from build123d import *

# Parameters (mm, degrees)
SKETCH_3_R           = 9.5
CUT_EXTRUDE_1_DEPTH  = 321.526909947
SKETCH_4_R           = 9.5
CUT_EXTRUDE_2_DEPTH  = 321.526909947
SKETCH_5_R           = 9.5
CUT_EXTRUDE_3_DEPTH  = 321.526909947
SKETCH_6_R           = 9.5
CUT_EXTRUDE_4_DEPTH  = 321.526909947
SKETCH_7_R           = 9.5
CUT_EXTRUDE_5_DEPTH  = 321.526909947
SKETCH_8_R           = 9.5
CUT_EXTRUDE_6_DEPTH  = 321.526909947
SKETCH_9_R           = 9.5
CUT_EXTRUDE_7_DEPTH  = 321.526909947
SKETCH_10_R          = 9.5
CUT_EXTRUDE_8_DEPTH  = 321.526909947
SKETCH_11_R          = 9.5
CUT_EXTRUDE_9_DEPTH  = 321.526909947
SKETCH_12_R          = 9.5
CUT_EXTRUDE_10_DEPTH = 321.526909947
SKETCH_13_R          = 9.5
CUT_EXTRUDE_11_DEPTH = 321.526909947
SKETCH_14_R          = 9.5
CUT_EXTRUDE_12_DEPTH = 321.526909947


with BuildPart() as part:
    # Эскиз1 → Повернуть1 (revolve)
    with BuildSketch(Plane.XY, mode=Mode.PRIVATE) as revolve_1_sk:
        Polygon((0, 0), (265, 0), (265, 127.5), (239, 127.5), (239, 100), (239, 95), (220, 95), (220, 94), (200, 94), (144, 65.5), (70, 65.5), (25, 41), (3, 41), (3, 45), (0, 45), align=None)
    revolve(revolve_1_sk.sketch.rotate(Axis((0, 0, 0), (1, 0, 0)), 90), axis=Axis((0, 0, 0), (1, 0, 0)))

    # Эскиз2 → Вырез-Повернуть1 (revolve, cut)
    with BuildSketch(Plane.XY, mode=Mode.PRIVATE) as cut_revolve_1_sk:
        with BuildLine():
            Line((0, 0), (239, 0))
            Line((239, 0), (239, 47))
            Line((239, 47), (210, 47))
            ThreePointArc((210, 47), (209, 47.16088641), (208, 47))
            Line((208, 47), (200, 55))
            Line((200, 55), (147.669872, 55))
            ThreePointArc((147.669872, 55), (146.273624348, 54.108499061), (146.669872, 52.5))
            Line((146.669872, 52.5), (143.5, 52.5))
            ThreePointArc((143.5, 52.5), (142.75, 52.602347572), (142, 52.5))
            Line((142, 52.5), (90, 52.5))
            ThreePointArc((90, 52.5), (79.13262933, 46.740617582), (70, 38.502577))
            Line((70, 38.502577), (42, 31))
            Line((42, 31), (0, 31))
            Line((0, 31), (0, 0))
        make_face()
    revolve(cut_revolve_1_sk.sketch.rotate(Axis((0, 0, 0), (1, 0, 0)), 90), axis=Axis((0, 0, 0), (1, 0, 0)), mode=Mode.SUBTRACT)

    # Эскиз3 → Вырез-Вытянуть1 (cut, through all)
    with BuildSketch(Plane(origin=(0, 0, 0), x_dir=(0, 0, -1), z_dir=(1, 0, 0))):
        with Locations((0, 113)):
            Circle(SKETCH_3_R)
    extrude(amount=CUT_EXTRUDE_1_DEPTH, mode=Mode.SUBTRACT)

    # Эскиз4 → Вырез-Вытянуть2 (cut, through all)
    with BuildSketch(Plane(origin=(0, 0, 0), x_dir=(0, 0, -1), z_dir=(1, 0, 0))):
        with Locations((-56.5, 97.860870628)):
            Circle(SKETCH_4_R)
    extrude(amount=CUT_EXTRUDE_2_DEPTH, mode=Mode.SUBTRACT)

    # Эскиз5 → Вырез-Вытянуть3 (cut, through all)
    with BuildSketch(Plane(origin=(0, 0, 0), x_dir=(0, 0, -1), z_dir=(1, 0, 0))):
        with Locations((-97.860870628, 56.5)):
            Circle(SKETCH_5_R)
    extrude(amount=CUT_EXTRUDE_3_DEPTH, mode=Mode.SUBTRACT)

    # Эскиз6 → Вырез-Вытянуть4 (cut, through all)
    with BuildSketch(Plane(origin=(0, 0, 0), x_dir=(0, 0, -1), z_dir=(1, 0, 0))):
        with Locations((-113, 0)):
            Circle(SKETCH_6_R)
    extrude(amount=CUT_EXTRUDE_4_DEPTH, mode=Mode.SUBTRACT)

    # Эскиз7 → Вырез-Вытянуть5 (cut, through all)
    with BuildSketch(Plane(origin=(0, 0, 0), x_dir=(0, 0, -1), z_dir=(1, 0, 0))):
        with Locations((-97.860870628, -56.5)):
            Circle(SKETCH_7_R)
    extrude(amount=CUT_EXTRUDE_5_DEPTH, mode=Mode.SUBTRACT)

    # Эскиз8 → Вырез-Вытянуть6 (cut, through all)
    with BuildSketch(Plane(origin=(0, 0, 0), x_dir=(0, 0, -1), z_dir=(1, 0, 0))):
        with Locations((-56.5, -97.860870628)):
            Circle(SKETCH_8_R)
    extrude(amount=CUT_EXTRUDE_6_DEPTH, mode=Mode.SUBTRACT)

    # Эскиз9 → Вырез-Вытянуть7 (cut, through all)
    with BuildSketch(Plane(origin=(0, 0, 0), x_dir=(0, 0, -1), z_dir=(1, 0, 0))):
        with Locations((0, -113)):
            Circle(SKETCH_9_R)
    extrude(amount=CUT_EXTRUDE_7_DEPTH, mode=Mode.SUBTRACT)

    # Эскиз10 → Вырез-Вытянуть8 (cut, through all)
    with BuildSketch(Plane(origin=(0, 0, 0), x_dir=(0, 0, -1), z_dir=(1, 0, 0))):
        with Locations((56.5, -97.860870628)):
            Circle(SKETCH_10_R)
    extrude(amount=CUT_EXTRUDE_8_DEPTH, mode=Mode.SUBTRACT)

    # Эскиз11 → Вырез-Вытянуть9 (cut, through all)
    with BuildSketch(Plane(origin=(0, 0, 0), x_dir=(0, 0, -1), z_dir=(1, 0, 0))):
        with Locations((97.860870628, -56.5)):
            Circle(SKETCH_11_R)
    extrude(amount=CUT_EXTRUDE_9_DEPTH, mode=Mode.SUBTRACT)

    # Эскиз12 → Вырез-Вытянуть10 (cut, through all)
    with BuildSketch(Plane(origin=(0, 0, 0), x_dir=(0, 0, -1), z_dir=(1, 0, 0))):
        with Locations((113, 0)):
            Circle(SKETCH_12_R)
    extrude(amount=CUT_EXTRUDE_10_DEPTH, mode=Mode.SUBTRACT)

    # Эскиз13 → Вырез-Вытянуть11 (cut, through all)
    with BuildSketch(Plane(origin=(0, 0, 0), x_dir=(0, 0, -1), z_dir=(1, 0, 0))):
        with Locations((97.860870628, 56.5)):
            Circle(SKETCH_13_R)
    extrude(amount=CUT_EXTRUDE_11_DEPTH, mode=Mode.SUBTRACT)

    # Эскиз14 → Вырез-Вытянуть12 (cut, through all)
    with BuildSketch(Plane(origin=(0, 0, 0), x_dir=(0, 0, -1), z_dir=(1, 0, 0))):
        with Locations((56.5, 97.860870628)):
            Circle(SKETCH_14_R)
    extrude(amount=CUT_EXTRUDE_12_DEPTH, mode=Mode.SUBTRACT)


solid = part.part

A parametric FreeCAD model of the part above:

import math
import FreeCAD as App
import Part
import Sketcher
from FreeCAD import Vector
Q = App.Units.Quantity

doc = App.newDocument("Part")
body = doc.addObject("PartDesign::Body", "Body")

sketch1 = doc.addObject("Sketcher::SketchObject", "Sketch")
body.addObject(sketch1)
sketch1.AttachmentSupport = (doc.XY_Plane, [""])
sketch1.MapMode = "FlatFace"
sketch1.addGeometry([
    Part.LineSegment(Vector(0, 0, 0), Vector(265, 0, 0)),
    Part.LineSegment(Vector(265, 0, 0), Vector(265, 127.5, 0)),
    Part.LineSegment(Vector(265, 127.5, 0), Vector(239, 127.5, 0)),
    Part.LineSegment(Vector(239, 127.5, 0), Vector(239, 95, 0)),
    Part.LineSegment(Vector(239, 95, 0), Vector(220, 95, 0)),
    Part.LineSegment(Vector(220, 95, 0), Vector(220, 94, 0)),
    Part.LineSegment(Vector(220, 94, 0), Vector(200, 94, 0)),
    Part.LineSegment(Vector(200, 94, 0), Vector(144, 65.5, 0)),
    Part.LineSegment(Vector(144, 65.5, 0), Vector(70, 65.5, 0)),
    Part.LineSegment(Vector(70, 65.5, 0), Vector(25, 41, 0)),
    Part.LineSegment(Vector(25, 41, 0), Vector(3, 41, 0)),
    Part.LineSegment(Vector(3, 41, 0), Vector(3, 45, 0)),
    Part.LineSegment(Vector(3, 45, 0), Vector(0, 45, 0)),
    Part.LineSegment(Vector(0, 45, 0), Vector(0, 0, 0)),
], False)
sketch1.addConstraint([
    Sketcher.Constraint("Coincident", 0, 2, 1, 1),
    Sketcher.Constraint("Coincident", 1, 2, 2, 1),
    Sketcher.Constraint("Coincident", 2, 2, 3, 1),
    Sketcher.Constraint("Coincident", 3, 2, 4, 1),
    Sketcher.Constraint("Coincident", 4, 2, 5, 1),
    Sketcher.Constraint("Coincident", 5, 2, 6, 1),
    Sketcher.Constraint("Coincident", 6, 2, 7, 1),
    Sketcher.Constraint("Coincident", 7, 2, 8, 1),
    Sketcher.Constraint("Coincident", 8, 2, 9, 1),
    Sketcher.Constraint("Coincident", 9, 2, 10, 1),
    Sketcher.Constraint("Coincident", 10, 2, 11, 1),
    Sketcher.Constraint("Coincident", 11, 2, 12, 1),
    Sketcher.Constraint("Coincident", 12, 2, 13, 1),
    Sketcher.Constraint("Coincident", 13, 2, 0, 1),
    Sketcher.Constraint("Horizontal", 0),
    Sketcher.Constraint("Vertical", 1),
    Sketcher.Constraint("Horizontal", 2),
    Sketcher.Constraint("Vertical", 3),
    Sketcher.Constraint("Horizontal", 4),
    Sketcher.Constraint("Vertical", 5),
    Sketcher.Constraint("Horizontal", 6),
    Sketcher.Constraint("Horizontal", 8),
    Sketcher.Constraint("Horizontal", 10),
    Sketcher.Constraint("Vertical", 11),
    Sketcher.Constraint("Horizontal", 12),
    Sketcher.Constraint("Vertical", 13),
    Sketcher.Constraint("Coincident", 13, 2, -1, 1),
    Sketcher.Constraint("DistanceX", 0, 1, 0, 2, Q("265 mm")),
    Sketcher.Constraint("DistanceX", 2, 2, 2, 1, Q("26 mm")),
    Sketcher.Constraint("DistanceX", 4, 2, 4, 1, Q("19 mm")),
    Sketcher.Constraint("DistanceX", 6, 2, 6, 1, Q("20 mm")),
    Sketcher.Constraint("DistanceX", 8, 2, 8, 1, Q("74 mm")),
    Sketcher.Constraint("DistanceX", 10, 2, 10, 1, Q("22 mm")),
    Sketcher.Constraint("DistanceX", 12, 2, 12, 1, Q("3 mm")),
    Sketcher.Constraint("DistanceY", 5, 2, 5, 1, Q("1 mm")),
    Sketcher.Constraint("DistanceY", 11, 1, 11, 2, Q("4 mm")),
    Sketcher.Constraint("DistanceY", 13, 2, 13, 1, Q("45 mm")),
    Sketcher.Constraint("DistanceY", 1, 1, 1, 2, Q("127.5 mm")),
    Sketcher.Constraint("DistanceY", 3, 2, 3, 1, Q("32.5 mm")),
    Sketcher.Constraint("DistanceX", -1, 1, 7, 2, Q("144 mm")),
    Sketcher.Constraint("DistanceY", 7, 2, 2, 2, Q("62 mm")),
])
revolution = doc.addObject("PartDesign::Revolution", "Revolution")
body.addObject(revolution)
revolution.Profile = sketch1
revolution.ReferenceAxis = (sketch1, ["H_Axis"])
revolution.Angle = 360

sketch2 = doc.addObject("Sketcher::SketchObject", "Sketch001")
body.addObject(sketch2)
sketch2.AttachmentSupport = (doc.XY_Plane, [""])
sketch2.MapMode = "FlatFace"
sketch2.addGeometry([
    Part.LineSegment(Vector(0, 0, 0), Vector(239, 0, 0)),
    Part.LineSegment(Vector(239, 0, 0), Vector(239, 47, 0)),
    Part.LineSegment(Vector(239, 47, 0), Vector(210, 47, 0)),
    Part.ArcOfCircle(Part.Circle(Vector(209, 44, 0), Vector(0, 0, 1), 3.2), math.radians(72), math.radians(108)),
    Part.LineSegment(Vector(208, 47, 0), Vector(200, 55, 0)),
    Part.LineSegment(Vector(200, 55, 0), Vector(147.7, 55, 0)),
    Part.ArcOfCircle(Part.Circle(Vector(147.6, 53.6, 0), Vector(0, 0, 1), 1.4), math.radians(87), math.radians(229)),
    Part.LineSegment(Vector(146.7, 52.5, 0), Vector(143.5, 52.5, 0)),
    Part.ArcOfCircle(Part.Circle(Vector(142.8, 49.8, 0), Vector(0, 0, 1), 2.8), math.radians(74), math.radians(106)),
    Part.LineSegment(Vector(142, 52.5, 0), Vector(90, 52.5, 0)),
    Part.ArcOfCircle(Part.Circle(Vector(107.8, 5.8, 0), Vector(0, 0, 1), 50), math.radians(111), math.radians(139)),
    Part.LineSegment(Vector(70, 38.5, 0), Vector(42, 31, 0)),
    Part.LineSegment(Vector(42, 31, 0), Vector(0, 31, 0)),
    Part.LineSegment(Vector(0, 31, 0), Vector(0, 0, 0)),
], False)
sketch2.addConstraint([
    Sketcher.Constraint("Coincident", 0, 2, 1, 1),
    Sketcher.Constraint("Coincident", 1, 2, 2, 1),
    Sketcher.Constraint("Coincident", 2, 2, 3, 1),
    Sketcher.Constraint("Coincident", 3, 2, 4, 1),
    Sketcher.Constraint("Coincident", 4, 2, 5, 1),
    Sketcher.Constraint("Coincident", 5, 2, 6, 1),
    Sketcher.Constraint("Coincident", 6, 2, 7, 1),
    Sketcher.Constraint("Coincident", 7, 2, 8, 1),
    Sketcher.Constraint("Coincident", 8, 2, 9, 1),
    Sketcher.Constraint("Coincident", 9, 2, 10, 1),
    Sketcher.Constraint("Coincident", 10, 2, 11, 1),
    Sketcher.Constraint("Coincident", 11, 2, 12, 1),
    Sketcher.Constraint("Coincident", 12, 2, 13, 1),
    Sketcher.Constraint("Coincident", 13, 2, 0, 1),
    Sketcher.Constraint("Horizontal", 0),
    Sketcher.Constraint("Vertical", 1),
    Sketcher.Constraint("Horizontal", 2),
    Sketcher.Constraint("Horizontal", 5),
    Sketcher.Constraint("Horizontal", 7),
    Sketcher.Constraint("Horizontal", 9),
    Sketcher.Constraint("Horizontal", 12),
    Sketcher.Constraint("Vertical", 13),
    Sketcher.Constraint("Coincident", 13, 2, -1, 1),
    Sketcher.Constraint("Horizontal", 2, 2, 3, 2),
    Sketcher.Constraint("Horizontal", 7, 2, 8, 2),
    Sketcher.Constraint("Radius", 10, Q("49.999998 mm")),
    Sketcher.Constraint("DistanceX", 0, 1, 0, 2, Q("239 mm")),
    Sketcher.Constraint("DistanceX", 2, 2, 2, 1, Q("29 mm")),
    Sketcher.Constraint("DistanceX", 9, 2, 9, 1, Q("52 mm")),
    Sketcher.Constraint("DistanceX", 12, 2, 12, 1, Q("42 mm")),
    Sketcher.Constraint("DistanceY", 1, 1, 1, 2, Q("47 mm")),
    Sketcher.Constraint("DistanceY", 13, 2, 13, 1, Q("31 mm")),
    Sketcher.Constraint("Angle", 4, Q("135 deg")),
    Sketcher.Constraint("Angle", 11, Q("-165.000001 deg")),
    Sketcher.Constraint("DistanceX", -1, 1, 3, 3, Q("209 mm")),
    Sketcher.Constraint("DistanceX", -1, 1, 4, 2, Q("200 mm")),
    Sketcher.Constraint("DistanceX", -1, 1, 8, 2, Q("142 mm")),
    Sketcher.Constraint("DistanceX", -1, 1, 10, 2, Q("70 mm")),
    Sketcher.Constraint("DistanceX", 6, 2, 5, 2, Q("1 mm")),
    Sketcher.Constraint("DistanceY", -1, 1, 6, 2, Q("52.5 mm")),
    Sketcher.Constraint("DistanceX", -1, 1, 7, 2, Q("143.5 mm")),
    Sketcher.Constraint("Radius", 3, Q("3.188226 mm")),
    Sketcher.Constraint("Radius", 6, Q("1.421483 mm")),
    Sketcher.Constraint("Radius", 8, Q("2.799163 mm")),
    Sketcher.Constraint("DistanceX", 5, 2, 5, 1, Q("52.330128 mm")),
])
groove = doc.addObject("PartDesign::Groove", "Groove")
body.addObject(groove)
groove.Profile = sketch2
groove.ReferenceAxis = (sketch2, ["H_Axis"])
groove.Angle = 360

sketch3 = doc.addObject("Sketcher::SketchObject", "Sketch002")
body.addObject(sketch3)
sketch3.AttachmentSupport = (doc.YZ_Plane, [""])
sketch3.MapMode = "FlatFace"
sketch3.addGeometry(Part.Circle(Vector(113, 0, 0), Vector(0, 0, 1), 10), False)
sketch3.addConstraint([
    Sketcher.Constraint("PointOnObject", 0, 3, -1),
    Sketcher.Constraint("Diameter", 0, Q("19 mm")),
    Sketcher.Constraint("DistanceX", -1, 1, 0, 3, Q("113 mm")),
])
pocket1 = doc.addObject("PartDesign::Pocket", "Pocket")
body.addObject(pocket1)
pocket1.Profile = sketch3
pocket1.Type = "ThroughAll"
pocket1.Reversed = True

sketch4 = doc.addObject("Sketcher::SketchObject", "Sketch003")
body.addObject(sketch4)
sketch4.AttachmentSupport = (doc.YZ_Plane, [""])
sketch4.MapMode = "FlatFace"
sketch4.addGeometry(Part.Circle(Vector(98, 56, 0), Vector(0, 0, 1), 10), False)
sketch4.addConstraint([
    Sketcher.Constraint("Diameter", 0, Q("19 mm")),
    Sketcher.Constraint("DistanceY", -1, 1, 0, 3, Q("56.5 mm")),
    Sketcher.Constraint("DistanceX", -1, 1, 0, 3, Q("97.860871 mm")),
])
pocket2 = doc.addObject("PartDesign::Pocket", "Pocket001")
body.addObject(pocket2)
pocket2.Profile = sketch4
pocket2.Type = "ThroughAll"
pocket2.Reversed = True

sketch5 = doc.addObject("Sketcher::SketchObject", "Sketch004")
body.addObject(sketch5)
sketch5.AttachmentSupport = (doc.YZ_Plane, [""])
sketch5.MapMode = "FlatFace"
sketch5.addGeometry(Part.Circle(Vector(56, 98, 0), Vector(0, 0, 1), 10), False)
sketch5.addConstraint([
    Sketcher.Constraint("Diameter", 0, Q("19 mm")),
    Sketcher.Constraint("DistanceX", -1, 1, 0, 3, Q("56.5 mm")),
    Sketcher.Constraint("DistanceY", -1, 1, 0, 3, Q("97.860871 mm")),
])
pocket3 = doc.addObject("PartDesign::Pocket", "Pocket002")
body.addObject(pocket3)
pocket3.Profile = sketch5
pocket3.Type = "ThroughAll"
pocket3.Reversed = True

sketch6 = doc.addObject("Sketcher::SketchObject", "Sketch005")
body.addObject(sketch6)
sketch6.AttachmentSupport = (doc.YZ_Plane, [""])
sketch6.MapMode = "FlatFace"
sketch6.addGeometry(Part.Circle(Vector(0, 113, 0), Vector(0, 0, 1), 10), False)
sketch6.addConstraint([
    Sketcher.Constraint("PointOnObject", 0, 3, -2),
    Sketcher.Constraint("Diameter", 0, Q("19 mm")),
    Sketcher.Constraint("DistanceY", -1, 1, 0, 3, Q("113 mm")),
])
pocket4 = doc.addObject("PartDesign::Pocket", "Pocket003")
body.addObject(pocket4)
pocket4.Profile = sketch6
pocket4.Type = "ThroughAll"
pocket4.Reversed = True

sketch7 = doc.addObject("Sketcher::SketchObject", "Sketch006")
body.addObject(sketch7)
sketch7.AttachmentSupport = (doc.YZ_Plane, [""])
sketch7.MapMode = "FlatFace"
sketch7.addGeometry(Part.Circle(Vector(-56, 98, 0), Vector(0, 0, 1), 10), False)
sketch7.addConstraint([
    Sketcher.Constraint("Diameter", 0, Q("19 mm")),
    Sketcher.Constraint("DistanceX", 0, 3, -1, 1, Q("56.5 mm")),
    Sketcher.Constraint("DistanceY", -1, 1, 0, 3, Q("97.860871 mm")),
])
pocket5 = doc.addObject("PartDesign::Pocket", "Pocket004")
body.addObject(pocket5)
pocket5.Profile = sketch7
pocket5.Type = "ThroughAll"
pocket5.Reversed = True

sketch8 = doc.addObject("Sketcher::SketchObject", "Sketch007")
body.addObject(sketch8)
sketch8.AttachmentSupport = (doc.YZ_Plane, [""])
sketch8.MapMode = "FlatFace"
sketch8.addGeometry(Part.Circle(Vector(-98, 56, 0), Vector(0, 0, 1), 10), False)
sketch8.addConstraint([
    Sketcher.Constraint("Diameter", 0, Q("19 mm")),
    Sketcher.Constraint("DistanceY", -1, 1, 0, 3, Q("56.5 mm")),
    Sketcher.Constraint("DistanceX", 0, 3, -1, 1, Q("97.860871 mm")),
])
pocket6 = doc.addObject("PartDesign::Pocket", "Pocket005")
body.addObject(pocket6)
pocket6.Profile = sketch8
pocket6.Type = "ThroughAll"
pocket6.Reversed = True

sketch9 = doc.addObject("Sketcher::SketchObject", "Sketch008")
body.addObject(sketch9)
sketch9.AttachmentSupport = (doc.YZ_Plane, [""])
sketch9.MapMode = "FlatFace"
sketch9.addGeometry(Part.Circle(Vector(-113, 0, 0), Vector(0, 0, 1), 10), False)
sketch9.addConstraint([
    Sketcher.Constraint("PointOnObject", 0, 3, -1),
    Sketcher.Constraint("Diameter", 0, Q("19 mm")),
    Sketcher.Constraint("DistanceX", 0, 3, -1, 1, Q("113 mm")),
])
pocket7 = doc.addObject("PartDesign::Pocket", "Pocket006")
body.addObject(pocket7)
pocket7.Profile = sketch9
pocket7.Type = "ThroughAll"
pocket7.Reversed = True

sketch10 = doc.addObject("Sketcher::SketchObject", "Sketch009")
body.addObject(sketch10)
sketch10.AttachmentSupport = (doc.YZ_Plane, [""])
sketch10.MapMode = "FlatFace"
sketch10.addGeometry(Part.Circle(Vector(-98, -56, 0), Vector(0, 0, 1), 10), False)
sketch10.addConstraint([
    Sketcher.Constraint("Diameter", 0, Q("19 mm")),
    Sketcher.Constraint("DistanceY", 0, 3, -1, 1, Q("56.5 mm")),
    Sketcher.Constraint("DistanceX", 0, 3, -1, 1, Q("97.860871 mm")),
])
pocket8 = doc.addObject("PartDesign::Pocket", "Pocket007")
body.addObject(pocket8)
pocket8.Profile = sketch10
pocket8.Type = "ThroughAll"
pocket8.Reversed = True

sketch11 = doc.addObject("Sketcher::SketchObject", "Sketch010")
body.addObject(sketch11)
sketch11.AttachmentSupport = (doc.YZ_Plane, [""])
sketch11.MapMode = "FlatFace"
sketch11.addGeometry(Part.Circle(Vector(-56, -98, 0), Vector(0, 0, 1), 10), False)
sketch11.addConstraint([
    Sketcher.Constraint("Diameter", 0, Q("19 mm")),
    Sketcher.Constraint("DistanceX", 0, 3, -1, 1, Q("56.5 mm")),
    Sketcher.Constraint("DistanceY", 0, 3, -1, 1, Q("97.860871 mm")),
])
pocket9 = doc.addObject("PartDesign::Pocket", "Pocket008")
body.addObject(pocket9)
pocket9.Profile = sketch11
pocket9.Type = "ThroughAll"
pocket9.Reversed = True

sketch12 = doc.addObject("Sketcher::SketchObject", "Sketch011")
body.addObject(sketch12)
sketch12.AttachmentSupport = (doc.YZ_Plane, [""])
sketch12.MapMode = "FlatFace"
sketch12.addGeometry(Part.Circle(Vector(0, -113, 0), Vector(0, 0, 1), 10), False)
sketch12.addConstraint([
    Sketcher.Constraint("PointOnObject", 0, 3, -2),
    Sketcher.Constraint("Diameter", 0, Q("19 mm")),
    Sketcher.Constraint("DistanceY", 0, 3, -1, 1, Q("113 mm")),
])
pocket10 = doc.addObject("PartDesign::Pocket", "Pocket009")
body.addObject(pocket10)
pocket10.Profile = sketch12
pocket10.Type = "ThroughAll"
pocket10.Reversed = True

sketch13 = doc.addObject("Sketcher::SketchObject", "Sketch012")
body.addObject(sketch13)
sketch13.AttachmentSupport = (doc.YZ_Plane, [""])
sketch13.MapMode = "FlatFace"
sketch13.addGeometry(Part.Circle(Vector(56, -98, 0), Vector(0, 0, 1), 10), False)
sketch13.addConstraint([
    Sketcher.Constraint("Diameter", 0, Q("19 mm")),
    Sketcher.Constraint("DistanceX", -1, 1, 0, 3, Q("56.5 mm")),
    Sketcher.Constraint("DistanceY", 0, 3, -1, 1, Q("97.860871 mm")),
])
pocket11 = doc.addObject("PartDesign::Pocket", "Pocket010")
body.addObject(pocket11)
pocket11.Profile = sketch13
pocket11.Type = "ThroughAll"
pocket11.Reversed = True

sketch14 = doc.addObject("Sketcher::SketchObject", "Sketch013")
body.addObject(sketch14)
sketch14.AttachmentSupport = (doc.YZ_Plane, [""])
sketch14.MapMode = "FlatFace"
sketch14.addGeometry(Part.Circle(Vector(98, -56, 0), Vector(0, 0, 1), 10), False)
sketch14.addConstraint([
    Sketcher.Constraint("Diameter", 0, Q("19 mm")),
    Sketcher.Constraint("DistanceY", 0, 3, -1, 1, Q("56.5 mm")),
    Sketcher.Constraint("DistanceX", -1, 1, 0, 3, Q("97.860871 mm")),
])
pocket12 = doc.addObject("PartDesign::Pocket", "Pocket011")
body.addObject(pocket12)
pocket12.Profile = sketch14
pocket12.Type = "ThroughAll"
pocket12.Reversed = True

doc.recompute()
